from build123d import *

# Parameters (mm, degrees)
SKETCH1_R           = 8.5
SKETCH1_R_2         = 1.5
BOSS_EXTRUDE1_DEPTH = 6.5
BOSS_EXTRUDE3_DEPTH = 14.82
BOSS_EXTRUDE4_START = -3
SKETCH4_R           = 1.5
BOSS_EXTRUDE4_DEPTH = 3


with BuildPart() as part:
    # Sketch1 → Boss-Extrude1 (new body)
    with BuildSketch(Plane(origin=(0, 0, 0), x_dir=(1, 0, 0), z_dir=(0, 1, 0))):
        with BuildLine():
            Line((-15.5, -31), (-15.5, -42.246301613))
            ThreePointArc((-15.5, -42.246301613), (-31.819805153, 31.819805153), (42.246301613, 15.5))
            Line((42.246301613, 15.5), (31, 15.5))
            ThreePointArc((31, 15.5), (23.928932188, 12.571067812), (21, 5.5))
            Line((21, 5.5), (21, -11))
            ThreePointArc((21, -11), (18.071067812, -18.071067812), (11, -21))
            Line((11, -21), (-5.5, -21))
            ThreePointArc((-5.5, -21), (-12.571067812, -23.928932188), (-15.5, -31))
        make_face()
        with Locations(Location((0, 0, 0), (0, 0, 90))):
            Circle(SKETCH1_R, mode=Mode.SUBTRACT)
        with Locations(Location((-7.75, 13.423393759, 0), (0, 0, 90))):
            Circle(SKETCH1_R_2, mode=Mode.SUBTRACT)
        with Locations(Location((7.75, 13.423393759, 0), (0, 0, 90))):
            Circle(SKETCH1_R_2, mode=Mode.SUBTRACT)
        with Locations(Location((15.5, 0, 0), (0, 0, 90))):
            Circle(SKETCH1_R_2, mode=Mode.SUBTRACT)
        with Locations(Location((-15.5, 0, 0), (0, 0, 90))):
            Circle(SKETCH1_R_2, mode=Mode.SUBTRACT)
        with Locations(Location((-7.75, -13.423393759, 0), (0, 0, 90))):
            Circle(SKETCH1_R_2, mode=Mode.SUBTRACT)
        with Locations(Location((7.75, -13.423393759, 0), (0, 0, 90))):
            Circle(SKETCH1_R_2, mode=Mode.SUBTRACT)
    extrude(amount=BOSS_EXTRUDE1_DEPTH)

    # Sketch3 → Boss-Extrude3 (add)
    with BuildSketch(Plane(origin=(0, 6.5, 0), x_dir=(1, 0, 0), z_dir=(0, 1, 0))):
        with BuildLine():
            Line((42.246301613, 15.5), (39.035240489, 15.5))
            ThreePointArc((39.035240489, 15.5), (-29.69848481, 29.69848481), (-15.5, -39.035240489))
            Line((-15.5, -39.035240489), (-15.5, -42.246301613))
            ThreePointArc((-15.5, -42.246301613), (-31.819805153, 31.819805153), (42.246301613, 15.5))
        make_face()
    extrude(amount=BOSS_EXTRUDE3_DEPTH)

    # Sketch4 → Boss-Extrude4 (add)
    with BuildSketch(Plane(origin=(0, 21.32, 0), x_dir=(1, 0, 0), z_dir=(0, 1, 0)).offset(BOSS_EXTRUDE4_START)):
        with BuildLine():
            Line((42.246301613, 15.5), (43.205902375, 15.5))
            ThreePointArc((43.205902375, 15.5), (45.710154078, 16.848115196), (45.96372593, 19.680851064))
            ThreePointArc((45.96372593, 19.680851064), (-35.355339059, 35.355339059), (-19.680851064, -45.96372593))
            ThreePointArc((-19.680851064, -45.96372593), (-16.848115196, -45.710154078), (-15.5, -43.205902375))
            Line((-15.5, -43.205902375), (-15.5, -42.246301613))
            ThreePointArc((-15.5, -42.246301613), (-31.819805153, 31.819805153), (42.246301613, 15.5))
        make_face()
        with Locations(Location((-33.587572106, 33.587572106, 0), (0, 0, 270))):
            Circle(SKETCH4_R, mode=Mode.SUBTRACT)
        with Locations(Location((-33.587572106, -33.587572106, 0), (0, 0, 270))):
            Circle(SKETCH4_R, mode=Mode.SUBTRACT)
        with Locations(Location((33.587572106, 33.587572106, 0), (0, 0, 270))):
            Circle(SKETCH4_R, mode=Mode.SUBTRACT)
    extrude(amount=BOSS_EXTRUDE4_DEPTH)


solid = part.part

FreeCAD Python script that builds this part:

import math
import FreeCAD as App
import Part
import Sketcher
from FreeCAD import Vector

doc = App.newDocument("Part")
body = doc.addObject("PartDesign::Body", "Body")

# Sketch on XZ plane
sketch1 = body.newObject("Sketcher::SketchObject", "Sketch")
sketch1.AttachmentSupport = (doc.getObject("XZ_Plane"), [""])
sketch1.MapMode = "FlatFace"
sketch1.addGeometry(Part.LineSegment(Vector(-15.5, 42.2, 0), Vector(-15.5, 31, 0)), False)
sketch1.addGeometry(Part.ArcOfCircle(Part.Circle(Vector(-5.5, 31, 0), Vector(0, 0, 1), 10), math.radians(180), math.radians(270)), False)
sketch1.addGeometry(Part.LineSegment(Vector(-5.5, 21, 0), Vector(11, 21, 0)), False)
sketch1.addGeometry(Part.ArcOfCircle(Part.Circle(Vector(11, 11, 0), Vector(0, 0, 1), 10), math.radians(0), math.radians(90)), False)
sketch1.addGeometry(Part.LineSegment(Vector(21, 11, 0), Vector(21, -5.5, 0)), False)
sketch1.addGeometry(Part.ArcOfCircle(Part.Circle(Vector(31, -5.5, 0), Vector(0, 0, 1), 10), math.radians(180), math.radians(270)), False)
sketch1.addGeometry(Part.LineSegment(Vector(31, -15.5, 0), Vector(42.2, -15.5, 0)), False)
sketch1.addGeometry(Part.ArcOfCircle(Part.Circle(Vector(0, 0, 0), Vector(0, 0, 1), 45), math.radians(110), math.radians(340)), False)
sketch1.addGeometry(Part.Circle(Vector(7.8, 13.4, 0), Vector(0, 0, 1), 1.5), False)
sketch1.addGeometry(Part.Circle(Vector(15.5, 0, 0), Vector(0, 0, 1), 1.5), False)
sketch1.addGeometry(Part.Circle(Vector(-7.8, 13.4, 0), Vector(0, 0, 1), 1.5), False)
sketch1.addGeometry(Part.Circle(Vector(0, 0, 0), Vector(0, 0, 1), 8.5), False)
sketch1.addGeometry(Part.Circle(Vector(-15.5, 0, 0), Vector(0, 0, 1), 1.5), False)
sketch1.addGeometry(Part.Circle(Vector(7.8, -13.4, 0), Vector(0, 0, 1), 1.5), False)
sketch1.addGeometry(Part.Circle(Vector(-7.8, -13.4, 0), Vector(0, 0, 1), 1.5), False)
sketch1.addConstraint(Sketcher.Constraint("Tangent", 0, 2, 1, 1))
sketch1.addConstraint(Sketcher.Constraint("Tangent", 1, 2, 2, 1))
sketch1.addConstraint(Sketcher.Constraint("Tangent", 2, 2, 3, 2))
sketch1.addConstraint(Sketcher.Constraint("Tangent", 3, 1, 4, 1))
sketch1.addConstraint(Sketcher.Constraint("Tangent", 4, 2, 5, 1))
sketch1.addConstraint(Sketcher.Constraint("Tangent", 5, 2, 6, 1))
sketch1.addConstraint(Sketcher.Constraint("Coincident", 6, 2, 7, 2))
sketch1.addConstraint(Sketcher.Constraint("Coincident", 7, 1, 0, 1))
sketch1.addConstraint(Sketcher.Constraint("Vertical", 0))
sketch1.addConstraint(Sketcher.Constraint("Horizontal", 2))
sketch1.addConstraint(Sketcher.Constraint("Vertical", 4))
sketch1.addConstraint(Sketcher.Constraint("Horizontal", 6))
sketch1.addConstraint(Sketcher.Constraint("Coincident", 7, 3, -1, 1))
sketch1.addConstraint(Sketcher.Constraint("Coincident", 11, 3, -1, 1))
sketch1.addConstraint(Sketcher.Constraint("Equal", 1, 3))
sketch1.addConstraint(Sketcher.Constraint("Equal", 3, 5))
sketch1.addConstraint(Sketcher.Constraint("Equal", 8, 9))
sketch1.addConstraint(Sketcher.Constraint("Equal", 9, 10))
sketch1.addConstraint(Sketcher.Constraint("Equal", 10, 12))
sketch1.addConstraint(Sketcher.Constraint("Equal", 12, 13))
sketch1.addConstraint(Sketcher.Constraint("Equal", 13, 14))
sketch1.addConstraint(Sketcher.Constraint("Symmetric", 9, 3, 12, 3, -1, 1))
sketch1.addConstraint(Sketcher.Constraint("Symmetric", 10, 3, 13, 3, -1, 1))
sketch1.addConstraint(Sketcher.Constraint("Symmetric", 8, 3, 14, 3, -1, 1))
sketch1.addConstraint(Sketcher.Constraint("Symmetric", 8, 3, 10, 3, -2))
sketch1.addConstraint(Sketcher.Constraint("PointOnObject", 9, 3, -1))
sketch1.addConstraint(Sketcher.Constraint("Vertical", 12, 3, 0, 2))
sketch1.addConstraint(Sketcher.Constraint("Equal", 6, 0))
sketch1.addConstraint(Sketcher.Constraint("Equal", 2, 4))
sketch1.addConstraint(Sketcher.Constraint("Diameter", 8, 3.0))
sketch1.addConstraint(Sketcher.Constraint("Diameter", 11, 17.0))
sketch1.addConstraint(Sketcher.Constraint("Radius", 1, 10.0))
sketch1.addConstraint(Sketcher.Constraint("Radius", 7, 45.0))
sketch1.addConstraint(Sketcher.Constraint("DistanceX", 2, 1, 2, 2, 16.5))
sketch1.addConstraint(Sketcher.Constraint("DistanceY", -1, 1, 1, 3, 31.0))
sketch1.addConstraint(Sketcher.Constraint("DistanceX", 10, 3, 8, 3, 15.5))
sketch1.addConstraint(Sketcher.Constraint("DistanceY", -1, 1, 8, 3, 13.423394))
pad1 = body.newObject("PartDesign::Pad", "Pad")
pad1.Profile = sketch1
pad1.Length = 6.5
pad1.Reversed = True

# Sketch on XZ plane
sketch2 = body.newObject("Sketcher::SketchObject", "Sketch001")
sketch2.AttachmentSupport = (doc.getObject("XZ_Plane"), [""])
sketch2.MapMode = "FlatFace"
sketch2.AttachmentOffset = App.Placement(Vector(0, 0, -6.5), App.Rotation())
sketch2.addGeometry(Part.LineSegment(Vector(39, -15.5, 0), Vector(42.2, -15.5, 0)), False)
sketch2.addGeometry(Part.ArcOfCircle(Part.Circle(Vector(0, 0, 0), Vector(0, 0, 1), 45), math.radians(110), math.radians(340)), False)
sketch2.addGeometry(Part.LineSegment(Vector(-15.5, 42.2, 0), Vector(-15.5, 39, 0)), False)
sketch2.addGeometry(Part.ArcOfCircle(Part.Circle(Vector(0, 0, 0), Vector(0, 0, 1), 42), math.radians(112), math.radians(338)), False)
sketch2.addConstraint(Sketcher.Constraint("Coincident", 0, 2, 1, 2))
sketch2.addConstraint(Sketcher.Constraint("Coincident", 1, 1, 2, 1))
sketch2.addConstraint(Sketcher.Constraint("Coincident", 2, 2, 3, 1))
sketch2.addConstraint(Sketcher.Constraint("Coincident", 3, 2, 0, 1))
sketch2.addConstraint(Sketcher.Constraint("Horizontal", 0))
sketch2.addConstraint(Sketcher.Constraint("Vertical", 2))
sketch2.addConstraint(Sketcher.Constraint("Coincident", 1, 3, -1, 1))
sketch2.addConstraint(Sketcher.Constraint("Coincident", 3, 3, -1, 1))
sketch2.addConstraint(Sketcher.Constraint("Equal", 0, 2))
sketch2.addConstraint(Sketcher.Constraint("Radius", 1, 45.0))
sketch2.addConstraint(Sketcher.Constraint("Radius", 3, 42.0))
sketch2.addConstraint(Sketcher.Constraint("DistanceY", 0, 2, -1, 1, 15.5))
pad2 = body.newObject("PartDesign::Pad", "Pad001")
pad2.Profile = sketch2
pad2.Length = 14.82
pad2.Reversed = True

# Sketch on XZ plane
sketch3 = body.newObject("Sketcher::SketchObject", "Sketch002")
sketch3.AttachmentSupport = (doc.getObject("XZ_Plane"), [""])
sketch3.MapMode = "FlatFace"
sketch3.AttachmentOffset = App.Placement(Vector(0, 0, -18.32), App.Rotation())
sketch3.addGeometry(Part.LineSegment(Vector(42.2, -15.5, 0), Vector(43.2, -15.5, 0)), False)
sketch3.addGeometry(Part.ArcOfCircle(Part.Circle(Vector(43.2, -18.5, 0), Vector(0, 0, 1), 3), math.radians(-23), math.radians(90)), False)
sketch3.addGeometry(Part.ArcOfCircle(Part.Circle(Vector(0, 0, 0), Vector(0, 0, 1), 50), math.radians(113), math.radians(337)), False)
sketch3.addGeometry(Part.ArcOfCircle(Part.Circle(Vector(-18.5, 43.2, 0), Vector(0, 0, 1), 3), math.radians(0), math.radians(113)), False)
sketch3.addGeometry(Part.LineSegment(Vector(-15.5, 43.2, 0), Vector(-15.5, 42.2, 0)), False)
sketch3.addGeometry(Part.ArcOfCircle(Part.Circle(Vector(0, 0, 0), Vector(0, 0, 1), 45), math.radians(110), math.radians(340)), False)
sketch3.addGeometry(Part.Circle(Vector(-33.6, 33.6, 0), Vector(0, 0, 1), 1.5), False)
sketch3.addGeometry(Part.Circle(Vector(-33.6, -33.6, 0), Vector(0, 0, 1), 1.5), False)
sketch3.addGeometry(Part.Circle(Vector(33.6, -33.6, 0), Vector(0, 0, 1), 1.5), False)
sketch3.addConstraint(Sketcher.Constraint("Tangent", 0, 2, 1, 2))
sketch3.addConstraint(Sketcher.Constraint("Tangent", 1, 1, 2, 2))
sketch3.addConstraint(Sketcher.Constraint("Tangent", 2, 1, 3, 2))
sketch3.addConstraint(Sketcher.Constraint("Tangent", 3, 1, 4, 1))
sketch3.addConstraint(Sketcher.Constraint("Coincident", 4, 2, 5, 1))
sketch3.addConstraint(Sketcher.Constraint("Coincident", 5, 2, 0, 1))
sketch3.addConstraint(Sketcher.Constraint("Horizontal", 0))
sketch3.addConstraint(Sketcher.Constraint("Vertical", 4))
sketch3.addConstraint(Sketcher.Constraint("Coincident", 2, 3, -1, 1))
sketch3.addConstraint(Sketcher.Constraint("Coincident", 5, 3, -1, 1))
sketch3.addConstraint(Sketcher.Constraint("Equal", 1, 3))
sketch3.addConstraint(Sketcher.Constraint("Equal", 6, 7))
sketch3.addConstraint(Sketcher.Constraint("Equal", 7, 8))
sketch3.addConstraint(Sketcher.Constraint("Symmetric", 6, 3, 8, 3, -1, 1))
sketch3.addConstraint(Sketcher.Constraint("Symmetric", 7, 3, 8, 3, -2))
sketch3.addConstraint(Sketcher.Constraint("Equal", 0, 4))
sketch3.addConstraint(Sketcher.Constraint("Diameter", 6, 3.0))
sketch3.addConstraint(Sketcher.Constraint("Radius", 1, 3.0))
sketch3.addConstraint(Sketcher.Constraint("Radius", 2, 50.0))
sketch3.addConstraint(Sketcher.Constraint("Radius", 5, 45.0))
sketch3.addConstraint(Sketcher.Constraint("DistanceY", 1, 3, -1, 1, 18.5))
sketch3.addConstraint(Sketcher.Constraint("DistanceY", 7, 3, 2, 1, 79.551298))
sketch3.addConstraint(Sketcher.Constraint("DistanceX", 8, 3, 1, 3, 9.61833))
pad3 = body.newObject("PartDesign::Pad", "Pad002")
pad3.Profile = sketch3
pad3.Length = 3
pad3.Reversed = True

doc.recompute()
